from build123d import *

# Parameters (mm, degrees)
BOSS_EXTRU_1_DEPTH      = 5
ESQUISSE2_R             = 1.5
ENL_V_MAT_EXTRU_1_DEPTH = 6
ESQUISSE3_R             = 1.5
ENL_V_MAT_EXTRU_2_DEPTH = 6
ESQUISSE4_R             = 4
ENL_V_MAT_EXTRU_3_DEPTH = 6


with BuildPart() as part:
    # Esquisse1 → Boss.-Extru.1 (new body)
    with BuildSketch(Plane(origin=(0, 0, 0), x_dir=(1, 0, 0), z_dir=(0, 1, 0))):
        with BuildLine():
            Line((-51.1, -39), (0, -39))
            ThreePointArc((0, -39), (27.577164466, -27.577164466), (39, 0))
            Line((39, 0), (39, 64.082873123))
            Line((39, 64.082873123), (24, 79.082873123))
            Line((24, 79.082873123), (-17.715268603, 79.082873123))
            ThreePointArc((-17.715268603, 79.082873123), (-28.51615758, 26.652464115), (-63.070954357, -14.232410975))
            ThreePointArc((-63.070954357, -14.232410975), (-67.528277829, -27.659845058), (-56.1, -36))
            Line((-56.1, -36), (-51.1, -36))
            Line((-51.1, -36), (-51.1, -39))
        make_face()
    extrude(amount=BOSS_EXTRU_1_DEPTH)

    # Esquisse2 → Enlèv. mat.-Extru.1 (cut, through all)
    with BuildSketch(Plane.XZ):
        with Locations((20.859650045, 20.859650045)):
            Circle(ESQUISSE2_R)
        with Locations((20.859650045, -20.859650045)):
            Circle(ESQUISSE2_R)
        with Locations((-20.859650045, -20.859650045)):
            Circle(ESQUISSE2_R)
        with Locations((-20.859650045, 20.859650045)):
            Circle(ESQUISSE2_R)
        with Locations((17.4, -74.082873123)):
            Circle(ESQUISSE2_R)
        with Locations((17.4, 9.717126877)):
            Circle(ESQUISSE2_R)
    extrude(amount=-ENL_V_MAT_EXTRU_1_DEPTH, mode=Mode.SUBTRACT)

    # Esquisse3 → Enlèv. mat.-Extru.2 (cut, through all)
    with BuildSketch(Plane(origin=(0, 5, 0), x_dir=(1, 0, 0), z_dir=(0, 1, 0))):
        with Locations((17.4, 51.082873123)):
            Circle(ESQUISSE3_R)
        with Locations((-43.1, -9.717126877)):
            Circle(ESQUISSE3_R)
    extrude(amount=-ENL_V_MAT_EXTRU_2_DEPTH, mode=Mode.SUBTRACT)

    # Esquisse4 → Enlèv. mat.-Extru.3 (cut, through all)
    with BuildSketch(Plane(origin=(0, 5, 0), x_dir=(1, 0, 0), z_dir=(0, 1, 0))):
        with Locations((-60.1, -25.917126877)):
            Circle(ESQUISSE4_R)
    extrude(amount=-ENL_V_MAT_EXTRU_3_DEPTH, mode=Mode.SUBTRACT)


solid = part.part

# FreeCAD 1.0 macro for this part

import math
import FreeCAD as App
import Part
import Sketcher

V = App.Vector
Q = App.Units.Quantity

doc = App.newDocument("Part")
body = doc.addObject("PartDesign::Body", "Body")

# Sketch on XZ plane
sketch1 = body.newObject("Sketcher::SketchObject", "Sketch")
sketch1.AttachmentSupport = (doc.getObject("XZ_Plane"), [""])
sketch1.MapMode = "FlatFace"
sketch1.addGeometry(Part.LineSegment(V(-51.1, 39, 0), V(0, 39, 0)), False)
sketch1.addGeometry(Part.ArcOfCircle(Part.Circle(V(0, 0, 0), V(0, 0, 1), 39), math.radians(0), math.radians(90)), False)
sketch1.addGeometry(Part.LineSegment(V(39, 0, 0), V(39, -64.1, 0)), False)
sketch1.addGeometry(Part.LineSegment(V(39, -64.1, 0), V(24, -79.1, 0)), False)
sketch1.addGeometry(Part.LineSegment(V(24, -79.1, 0), V(-17.7, -79.1, 0)), False)
sketch1.addGeometry(Part.ArcOfCircle(Part.Circle(V(-126.1, -74.1, 0), V(0, 0, 1), 108.5), math.radians(-3), math.radians(54)), False)
sketch1.addGeometry(Part.ArcOfCircle(Part.Circle(V(-56.1, 24, 0), V(0, 0, 1), 12), math.radians(90), math.radians(234)), False)
sketch1.addGeometry(Part.LineSegment(V(-56.1, 36, 0), V(-51.1, 36, 0)), False)
sketch1.addGeometry(Part.LineSegment(V(-51.1, 36, 0), V(-51.1, 39, 0)), False)
sketch1.addConstraint(Sketcher.Constraint("Tangent", 0, 2, 1, 2))
sketch1.addConstraint(Sketcher.Constraint("Tangent", 1, 1, 2, 1))
sketch1.addConstraint(Sketcher.Constraint("Coincident", 2, 2, 3, 1))
sketch1.addConstraint(Sketcher.Constraint("Coincident", 3, 2, 4, 1))
sketch1.addConstraint(Sketcher.Constraint("Coincident", 4, 2, 5, 1))
sketch1.addConstraint(Sketcher.Constraint("Tangent", 5, 2, 6, 2))
sketch1.addConstraint(Sketcher.Constraint("Tangent", 6, 1, 7, 1))
sketch1.addConstraint(Sketcher.Constraint("Coincident", 7, 2, 8, 1))
sketch1.addConstraint(Sketcher.Constraint("Coincident", 8, 2, 0, 1))
sketch1.addConstraint(Sketcher.Constraint("Horizontal", 0))
sketch1.addConstraint(Sketcher.Constraint("Vertical", 2))
sketch1.addConstraint(Sketcher.Constraint("Horizontal", 4))
sketch1.addConstraint(Sketcher.Constraint("Horizontal", 7))
sketch1.addConstraint(Sketcher.Constraint("Vertical", 8))
sketch1.addConstraint(Sketcher.Constraint("Coincident", 1, 3, -1, 1))
sketch1.addConstraint(Sketcher.Constraint("Radius", 1, 39.0))
sketch1.addConstraint(Sketcher.Constraint("Radius", 6, 12.0))
sketch1.addConstraint(Sketcher.Constraint("Radius", 5, 108.5))
sketch1.addConstraint(Sketcher.Constraint("DistanceX", 7, 1, 7, 2, 5.0))
sketch1.addConstraint(Sketcher.Constraint("DistanceY", 8, 1, 8, 2, 3.0))
sketch1.addConstraint(Sketcher.Constraint("Angle", 3, Q("-135 deg")))
sketch1.addConstraint(Sketcher.Constraint("DistanceX", 0, 1, 0, 2, 51.1))
sketch1.addConstraint(Sketcher.Constraint("DistanceX", -1, 1, 3, 2, 24.0))
sketch1.addConstraint(Sketcher.Constraint("DistanceX", 5, 3, 6, 3, 70.0))
sketch1.addConstraint(Sketcher.Constraint("DistanceY", 5, 3, 2, 2, 10.0))
pad1 = body.newObject("PartDesign::Pad", "Pad")
pad1.Profile = sketch1
pad1.Length = 5
pad1.Reversed = True

# Sketch on XZ plane
sketch2 = body.newObject("Sketcher::SketchObject", "Sketch001")
sketch2.AttachmentSupport = (doc.getObject("XZ_Plane"), [""])
sketch2.MapMode = "FlatFace"
sketch2.addGeometry(Part.Circle(V(20.9, 20.9, 0), V(0, 0, 1), 1.5), False)
sketch2.addGeometry(Part.Circle(V(20.9, -20.9, 0), V(0, 0, 1), 1.5), False)
sketch2.addGeometry(Part.Circle(V(-20.9, -20.9, 0), V(0, 0, 1), 1.5), False)
sketch2.addGeometry(Part.Circle(V(-20.9, 20.9, 0), V(0, 0, 1), 1.5), False)
sketch2.addGeometry(Part.Circle(V(17.4, -74.1, 0), V(0, 0, 1), 1.5), False)
sketch2.addGeometry(Part.Circle(V(17.4, 9.7, 0), V(0, 0, 1), 1.5), False)
sketch2.addConstraint(Sketcher.Constraint("Equal", 0, 1))
sketch2.addConstraint(Sketcher.Constraint("Equal", 1, 2))
sketch2.addConstraint(Sketcher.Constraint("Equal", 2, 3))
sketch2.addConstraint(Sketcher.Constraint("Equal", 3, 4))
sketch2.addConstraint(Sketcher.Constraint("Equal", 4, 5))
sketch2.addConstraint(Sketcher.Constraint("Symmetric", 0, 3, 2, 3, -1, 1))
sketch2.addConstraint(Sketcher.Constraint("Symmetric", 1, 3, 3, 3, -1, 1))
sketch2.addConstraint(Sketcher.Constraint("Symmetric", 1, 3, 2, 3, -2))
sketch2.addConstraint(Sketcher.Constraint("Vertical", 4, 3, 5, 3))
sketch2.addConstraint(Sketcher.Constraint("Diameter", 0, 3.0))
sketch2.addConstraint(Sketcher.Constraint("DistanceX", -1, 1, 4, 3, 17.4))
sketch2.addConstraint(Sketcher.Constraint("DistanceY", 4, 3, 5, 3, 83.8))
sketch2.addConstraint(Sketcher.Constraint("DistanceY", 1, 3, 0, 3, 41.7193))
sketch2.addConstraint(Sketcher.Constraint("DistanceX", 2, 3, 1, 3, 41.7193))
sketch2.addConstraint(Sketcher.Constraint("DistanceY", 4, 3, -1, 1, 74.082873))
pocket1 = body.newObject("PartDesign::Pocket", "Pocket")
pocket1.Profile = sketch2
pocket1.Type = "ThroughAll"

# Sketch on XZ plane
sketch3 = body.newObject("Sketcher::SketchObject", "Sketch002")
sketch3.AttachmentSupport = (doc.getObject("XZ_Plane"), [""])
sketch3.MapMode = "FlatFace"
sketch3.AttachmentOffset = App.Placement(V(0, 0, -5), App.Rotation())
sketch3.addGeometry(Part.Circle(V(17.4, -51.1, 0), V(0, 0, 1), 1.5), False)
sketch3.addGeometry(Part.Circle(V(-43.1, 9.7, 0), V(0, 0, 1), 1.5), False)
sketch3.addConstraint(Sketcher.Constraint("Equal", 0, 1))
sketch3.addConstraint(Sketcher.Constraint("Diameter", 0, 3.0))
sketch3.addConstraint(Sketcher.Constraint("DistanceX", -1, 1, 0, 3, 17.4))
sketch3.addConstraint(Sketcher.Constraint("DistanceX", 1, 3, -1, 1, 43.1))
sketch3.addConstraint(Sketcher.Constraint("DistanceY", 0, 3, 1, 3, 60.8))
sketch3.addConstraint(Sketcher.Constraint("DistanceY", 0, 3, -1, 1, 51.082873))
pocket2 = body.newObject("PartDesign::Pocket", "Pocket001")
pocket2.Profile = sketch3
pocket2.Type = "ThroughAll"
pocket2.Reversed = True

# Sketch on XZ plane
sketch4 = body.newObject("Sketcher::SketchObject", "Sketch003")
sketch4.AttachmentSupport = (doc.getObject("XZ_Plane"), [""])
sketch4.MapMode = "FlatFace"
sketch4.AttachmentOffset = App.Placement(V(0, 0, -5), App.Rotation())
sketch4.addGeometry(Part.Circle(V(-60.1, 25.9, 0), V(0, 0, 1), 4), False)
sketch4.addConstraint(Sketcher.Constraint("Diameter", 0, 8.0))
sketch4.addConstraint(Sketcher.Constraint("DistanceX", 0, 3, -1, 1, 60.1))
sketch4.addConstraint(Sketcher.Constraint("DistanceY", -1, 1, 0, 3, 25.917127))
pocket3 = body.newObject("PartDesign::Pocket", "Pocket002")
pocket3.Profile = sketch4
pocket3.Type = "ThroughAll"
pocket3.Reversed = True

doc.recompute()
